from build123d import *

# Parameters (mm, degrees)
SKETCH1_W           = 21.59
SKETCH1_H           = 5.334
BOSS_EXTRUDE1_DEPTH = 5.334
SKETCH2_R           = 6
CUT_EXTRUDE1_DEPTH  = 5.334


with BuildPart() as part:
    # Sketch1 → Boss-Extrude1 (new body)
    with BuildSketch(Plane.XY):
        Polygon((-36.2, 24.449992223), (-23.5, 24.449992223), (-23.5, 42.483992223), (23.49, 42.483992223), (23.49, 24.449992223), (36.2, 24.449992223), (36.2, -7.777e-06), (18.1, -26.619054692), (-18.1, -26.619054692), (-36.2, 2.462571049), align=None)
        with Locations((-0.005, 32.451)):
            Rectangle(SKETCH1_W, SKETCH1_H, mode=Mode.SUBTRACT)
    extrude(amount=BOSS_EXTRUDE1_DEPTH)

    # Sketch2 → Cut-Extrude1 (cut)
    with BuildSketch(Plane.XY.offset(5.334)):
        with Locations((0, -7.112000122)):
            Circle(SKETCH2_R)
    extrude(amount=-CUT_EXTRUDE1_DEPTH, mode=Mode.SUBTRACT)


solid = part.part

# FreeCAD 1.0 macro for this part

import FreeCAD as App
import Part
import Sketcher
from FreeCAD import Vector
Q = App.Units.Quantity

doc = App.newDocument("Part")
body = doc.addObject("PartDesign::Body", "Body")

# Sketch on XY plane
sketch1 = doc.addObject("Sketcher::SketchObject", "Sketch")
body.addObject(sketch1)
sketch1.AttachmentSupport = (doc.XY_Plane, [""])
sketch1.MapMode = "FlatFace"
sketch1.addGeometry([
    Part.LineSegment(Vector(-24, 24, 0), Vector(-36, 24, 0)),  # 0
    Part.LineSegment(Vector(-36, 24, 0), Vector(-36, 2, 0)),  # 1
    Part.LineSegment(Vector(-36, 2, 0), Vector(-18, -27, 0)),  # 2
    Part.LineSegment(Vector(-18, -27, 0), Vector(18, -27, 0)),  # 3
    Part.LineSegment(Vector(18, -27, 0), Vector(36, 0, 0)),  # 4
    Part.LineSegment(Vector(36, 0, 0), Vector(36, 24, 0)),  # 5
    Part.LineSegment(Vector(36, 24, 0), Vector(23, 24, 0)),  # 6
    Part.LineSegment(Vector(23, 24, 0), Vector(23, 42, 0)),  # 7
    Part.LineSegment(Vector(23, 42, 0), Vector(-24, 42, 0)),  # 8
    Part.LineSegment(Vector(-24, 42, 0), Vector(-24, 24, 0)),  # 9
    Part.LineSegment(Vector(-11, 30, 0), Vector(-11, 35, 0)),  # 10
    Part.LineSegment(Vector(-11, 35, 0), Vector(11, 35, 0)),  # 11
    Part.LineSegment(Vector(11, 35, 0), Vector(11, 30, 0)),  # 12
    Part.LineSegment(Vector(11, 30, 0), Vector(-11, 30, 0)),  # 13
], False)
sketch1.addConstraint([
    Sketcher.Constraint("Coincident", 0, 2, 1, 1),
    Sketcher.Constraint("Coincident", 1, 2, 2, 1),
    Sketcher.Constraint("Coincident", 2, 2, 3, 1),
    Sketcher.Constraint("Coincident", 3, 2, 4, 1),
    Sketcher.Constraint("Coincident", 4, 2, 5, 1),
    Sketcher.Constraint("Coincident", 5, 2, 6, 1),
    Sketcher.Constraint("Coincident", 6, 2, 7, 1),
    Sketcher.Constraint("Coincident", 7, 2, 8, 1),
    Sketcher.Constraint("Coincident", 8, 2, 9, 1),
    Sketcher.Constraint("Coincident", 9, 2, 0, 1),
    Sketcher.Constraint("Coincident", 10, 2, 11, 1),
    Sketcher.Constraint("Coincident", 11, 2, 12, 1),
    Sketcher.Constraint("Coincident", 12, 2, 13, 1),
    Sketcher.Constraint("Coincident", 13, 2, 10, 1),
    Sketcher.Constraint("Horizontal", 0),
    Sketcher.Constraint("Vertical", 1),
    Sketcher.Constraint("Horizontal", 3),
    Sketcher.Constraint("Vertical", 5),
    Sketcher.Constraint("Horizontal", 6),
    Sketcher.Constraint("Vertical", 7),
    Sketcher.Constraint("Horizontal", 8),
    Sketcher.Constraint("Vertical", 9),
    Sketcher.Constraint("Vertical", 10),
    Sketcher.Constraint("Horizontal", 11),
    Sketcher.Constraint("Vertical", 12),
    Sketcher.Constraint("Horizontal", 13),
    Sketcher.Constraint("Symmetric", 0, 2, 5, 2, -2),
    Sketcher.Constraint("DistanceX", 0, 2, 0, 1, Q("0.5 in")),
    Sketcher.Constraint("DistanceX", 0, 2, 10, 2, Q("1 in")),
    Sketcher.Constraint("DistanceX", 8, 2, 8, 1, Q("1.85 in")),
    Sketcher.Constraint("DistanceX", 11, 1, 11, 2, Q("0.85 in")),
    Sketcher.Constraint("DistanceY", 7, 1, 7, 2, Q("0.71 in")),
    Sketcher.Constraint("DistanceY", 10, 1, 10, 2, Q("0.21 in")),
    Sketcher.Constraint("DistanceX", 3, 1, 3, 2, Q("36.2 mm")),
    Sketcher.Constraint("DistanceX", 6, 2, 6, 1, Q("12.71 mm")),
    Sketcher.Constraint("DistanceY", 5, 1, 5, 2, Q("24.45 mm")),
    Sketcher.Constraint("DistanceY", 1, 2, 1, 1, Q("21.987421 mm")),
    Sketcher.Constraint("DistanceX", 2, 2, -1, 1, Q("18.1 mm")),
    Sketcher.Constraint("DistanceY", -1, 1, 10, 2, Q("35.118 mm")),
    Sketcher.Constraint("Distance", 2, Q("34.254211 mm")),
    Sketcher.Constraint("DistanceY", -1, 1, 1, 2, Q("2.462571 mm")),
])
pad1 = doc.addObject("PartDesign::Pad", "Pad")
body.addObject(pad1)
pad1.Profile = sketch1
pad1.Length = Q("0.21 in")

# Sketch on XY plane
sketch2 = doc.addObject("Sketcher::SketchObject", "Sketch001")
body.addObject(sketch2)
sketch2.AttachmentSupport = (doc.XY_Plane, [""])
sketch2.MapMode = "FlatFace"
sketch2.AttachmentOffset = App.Placement(Vector(0, 0, 0.21 * 25.4), App.Rotation())
sketch2.addGeometry(Part.Circle(Vector(0, -7, 0), Vector(0, 0, 1), 6), False)
sketch2.addConstraint([
    Sketcher.Constraint("PointOnObject", 0, 3, -2),
    Sketcher.Constraint("Diameter", 0, Q("12 mm")),
    Sketcher.Constraint("DistanceY", 0, 3, -1, 1, Q("0.28 in")),
])
pocket1 = doc.addObject("PartDesign::Pocket", "Pocket")
body.addObject(pocket1)
pocket1.Profile = sketch2
pocket1.Length = Q("0.21 in")

doc.recompute()
